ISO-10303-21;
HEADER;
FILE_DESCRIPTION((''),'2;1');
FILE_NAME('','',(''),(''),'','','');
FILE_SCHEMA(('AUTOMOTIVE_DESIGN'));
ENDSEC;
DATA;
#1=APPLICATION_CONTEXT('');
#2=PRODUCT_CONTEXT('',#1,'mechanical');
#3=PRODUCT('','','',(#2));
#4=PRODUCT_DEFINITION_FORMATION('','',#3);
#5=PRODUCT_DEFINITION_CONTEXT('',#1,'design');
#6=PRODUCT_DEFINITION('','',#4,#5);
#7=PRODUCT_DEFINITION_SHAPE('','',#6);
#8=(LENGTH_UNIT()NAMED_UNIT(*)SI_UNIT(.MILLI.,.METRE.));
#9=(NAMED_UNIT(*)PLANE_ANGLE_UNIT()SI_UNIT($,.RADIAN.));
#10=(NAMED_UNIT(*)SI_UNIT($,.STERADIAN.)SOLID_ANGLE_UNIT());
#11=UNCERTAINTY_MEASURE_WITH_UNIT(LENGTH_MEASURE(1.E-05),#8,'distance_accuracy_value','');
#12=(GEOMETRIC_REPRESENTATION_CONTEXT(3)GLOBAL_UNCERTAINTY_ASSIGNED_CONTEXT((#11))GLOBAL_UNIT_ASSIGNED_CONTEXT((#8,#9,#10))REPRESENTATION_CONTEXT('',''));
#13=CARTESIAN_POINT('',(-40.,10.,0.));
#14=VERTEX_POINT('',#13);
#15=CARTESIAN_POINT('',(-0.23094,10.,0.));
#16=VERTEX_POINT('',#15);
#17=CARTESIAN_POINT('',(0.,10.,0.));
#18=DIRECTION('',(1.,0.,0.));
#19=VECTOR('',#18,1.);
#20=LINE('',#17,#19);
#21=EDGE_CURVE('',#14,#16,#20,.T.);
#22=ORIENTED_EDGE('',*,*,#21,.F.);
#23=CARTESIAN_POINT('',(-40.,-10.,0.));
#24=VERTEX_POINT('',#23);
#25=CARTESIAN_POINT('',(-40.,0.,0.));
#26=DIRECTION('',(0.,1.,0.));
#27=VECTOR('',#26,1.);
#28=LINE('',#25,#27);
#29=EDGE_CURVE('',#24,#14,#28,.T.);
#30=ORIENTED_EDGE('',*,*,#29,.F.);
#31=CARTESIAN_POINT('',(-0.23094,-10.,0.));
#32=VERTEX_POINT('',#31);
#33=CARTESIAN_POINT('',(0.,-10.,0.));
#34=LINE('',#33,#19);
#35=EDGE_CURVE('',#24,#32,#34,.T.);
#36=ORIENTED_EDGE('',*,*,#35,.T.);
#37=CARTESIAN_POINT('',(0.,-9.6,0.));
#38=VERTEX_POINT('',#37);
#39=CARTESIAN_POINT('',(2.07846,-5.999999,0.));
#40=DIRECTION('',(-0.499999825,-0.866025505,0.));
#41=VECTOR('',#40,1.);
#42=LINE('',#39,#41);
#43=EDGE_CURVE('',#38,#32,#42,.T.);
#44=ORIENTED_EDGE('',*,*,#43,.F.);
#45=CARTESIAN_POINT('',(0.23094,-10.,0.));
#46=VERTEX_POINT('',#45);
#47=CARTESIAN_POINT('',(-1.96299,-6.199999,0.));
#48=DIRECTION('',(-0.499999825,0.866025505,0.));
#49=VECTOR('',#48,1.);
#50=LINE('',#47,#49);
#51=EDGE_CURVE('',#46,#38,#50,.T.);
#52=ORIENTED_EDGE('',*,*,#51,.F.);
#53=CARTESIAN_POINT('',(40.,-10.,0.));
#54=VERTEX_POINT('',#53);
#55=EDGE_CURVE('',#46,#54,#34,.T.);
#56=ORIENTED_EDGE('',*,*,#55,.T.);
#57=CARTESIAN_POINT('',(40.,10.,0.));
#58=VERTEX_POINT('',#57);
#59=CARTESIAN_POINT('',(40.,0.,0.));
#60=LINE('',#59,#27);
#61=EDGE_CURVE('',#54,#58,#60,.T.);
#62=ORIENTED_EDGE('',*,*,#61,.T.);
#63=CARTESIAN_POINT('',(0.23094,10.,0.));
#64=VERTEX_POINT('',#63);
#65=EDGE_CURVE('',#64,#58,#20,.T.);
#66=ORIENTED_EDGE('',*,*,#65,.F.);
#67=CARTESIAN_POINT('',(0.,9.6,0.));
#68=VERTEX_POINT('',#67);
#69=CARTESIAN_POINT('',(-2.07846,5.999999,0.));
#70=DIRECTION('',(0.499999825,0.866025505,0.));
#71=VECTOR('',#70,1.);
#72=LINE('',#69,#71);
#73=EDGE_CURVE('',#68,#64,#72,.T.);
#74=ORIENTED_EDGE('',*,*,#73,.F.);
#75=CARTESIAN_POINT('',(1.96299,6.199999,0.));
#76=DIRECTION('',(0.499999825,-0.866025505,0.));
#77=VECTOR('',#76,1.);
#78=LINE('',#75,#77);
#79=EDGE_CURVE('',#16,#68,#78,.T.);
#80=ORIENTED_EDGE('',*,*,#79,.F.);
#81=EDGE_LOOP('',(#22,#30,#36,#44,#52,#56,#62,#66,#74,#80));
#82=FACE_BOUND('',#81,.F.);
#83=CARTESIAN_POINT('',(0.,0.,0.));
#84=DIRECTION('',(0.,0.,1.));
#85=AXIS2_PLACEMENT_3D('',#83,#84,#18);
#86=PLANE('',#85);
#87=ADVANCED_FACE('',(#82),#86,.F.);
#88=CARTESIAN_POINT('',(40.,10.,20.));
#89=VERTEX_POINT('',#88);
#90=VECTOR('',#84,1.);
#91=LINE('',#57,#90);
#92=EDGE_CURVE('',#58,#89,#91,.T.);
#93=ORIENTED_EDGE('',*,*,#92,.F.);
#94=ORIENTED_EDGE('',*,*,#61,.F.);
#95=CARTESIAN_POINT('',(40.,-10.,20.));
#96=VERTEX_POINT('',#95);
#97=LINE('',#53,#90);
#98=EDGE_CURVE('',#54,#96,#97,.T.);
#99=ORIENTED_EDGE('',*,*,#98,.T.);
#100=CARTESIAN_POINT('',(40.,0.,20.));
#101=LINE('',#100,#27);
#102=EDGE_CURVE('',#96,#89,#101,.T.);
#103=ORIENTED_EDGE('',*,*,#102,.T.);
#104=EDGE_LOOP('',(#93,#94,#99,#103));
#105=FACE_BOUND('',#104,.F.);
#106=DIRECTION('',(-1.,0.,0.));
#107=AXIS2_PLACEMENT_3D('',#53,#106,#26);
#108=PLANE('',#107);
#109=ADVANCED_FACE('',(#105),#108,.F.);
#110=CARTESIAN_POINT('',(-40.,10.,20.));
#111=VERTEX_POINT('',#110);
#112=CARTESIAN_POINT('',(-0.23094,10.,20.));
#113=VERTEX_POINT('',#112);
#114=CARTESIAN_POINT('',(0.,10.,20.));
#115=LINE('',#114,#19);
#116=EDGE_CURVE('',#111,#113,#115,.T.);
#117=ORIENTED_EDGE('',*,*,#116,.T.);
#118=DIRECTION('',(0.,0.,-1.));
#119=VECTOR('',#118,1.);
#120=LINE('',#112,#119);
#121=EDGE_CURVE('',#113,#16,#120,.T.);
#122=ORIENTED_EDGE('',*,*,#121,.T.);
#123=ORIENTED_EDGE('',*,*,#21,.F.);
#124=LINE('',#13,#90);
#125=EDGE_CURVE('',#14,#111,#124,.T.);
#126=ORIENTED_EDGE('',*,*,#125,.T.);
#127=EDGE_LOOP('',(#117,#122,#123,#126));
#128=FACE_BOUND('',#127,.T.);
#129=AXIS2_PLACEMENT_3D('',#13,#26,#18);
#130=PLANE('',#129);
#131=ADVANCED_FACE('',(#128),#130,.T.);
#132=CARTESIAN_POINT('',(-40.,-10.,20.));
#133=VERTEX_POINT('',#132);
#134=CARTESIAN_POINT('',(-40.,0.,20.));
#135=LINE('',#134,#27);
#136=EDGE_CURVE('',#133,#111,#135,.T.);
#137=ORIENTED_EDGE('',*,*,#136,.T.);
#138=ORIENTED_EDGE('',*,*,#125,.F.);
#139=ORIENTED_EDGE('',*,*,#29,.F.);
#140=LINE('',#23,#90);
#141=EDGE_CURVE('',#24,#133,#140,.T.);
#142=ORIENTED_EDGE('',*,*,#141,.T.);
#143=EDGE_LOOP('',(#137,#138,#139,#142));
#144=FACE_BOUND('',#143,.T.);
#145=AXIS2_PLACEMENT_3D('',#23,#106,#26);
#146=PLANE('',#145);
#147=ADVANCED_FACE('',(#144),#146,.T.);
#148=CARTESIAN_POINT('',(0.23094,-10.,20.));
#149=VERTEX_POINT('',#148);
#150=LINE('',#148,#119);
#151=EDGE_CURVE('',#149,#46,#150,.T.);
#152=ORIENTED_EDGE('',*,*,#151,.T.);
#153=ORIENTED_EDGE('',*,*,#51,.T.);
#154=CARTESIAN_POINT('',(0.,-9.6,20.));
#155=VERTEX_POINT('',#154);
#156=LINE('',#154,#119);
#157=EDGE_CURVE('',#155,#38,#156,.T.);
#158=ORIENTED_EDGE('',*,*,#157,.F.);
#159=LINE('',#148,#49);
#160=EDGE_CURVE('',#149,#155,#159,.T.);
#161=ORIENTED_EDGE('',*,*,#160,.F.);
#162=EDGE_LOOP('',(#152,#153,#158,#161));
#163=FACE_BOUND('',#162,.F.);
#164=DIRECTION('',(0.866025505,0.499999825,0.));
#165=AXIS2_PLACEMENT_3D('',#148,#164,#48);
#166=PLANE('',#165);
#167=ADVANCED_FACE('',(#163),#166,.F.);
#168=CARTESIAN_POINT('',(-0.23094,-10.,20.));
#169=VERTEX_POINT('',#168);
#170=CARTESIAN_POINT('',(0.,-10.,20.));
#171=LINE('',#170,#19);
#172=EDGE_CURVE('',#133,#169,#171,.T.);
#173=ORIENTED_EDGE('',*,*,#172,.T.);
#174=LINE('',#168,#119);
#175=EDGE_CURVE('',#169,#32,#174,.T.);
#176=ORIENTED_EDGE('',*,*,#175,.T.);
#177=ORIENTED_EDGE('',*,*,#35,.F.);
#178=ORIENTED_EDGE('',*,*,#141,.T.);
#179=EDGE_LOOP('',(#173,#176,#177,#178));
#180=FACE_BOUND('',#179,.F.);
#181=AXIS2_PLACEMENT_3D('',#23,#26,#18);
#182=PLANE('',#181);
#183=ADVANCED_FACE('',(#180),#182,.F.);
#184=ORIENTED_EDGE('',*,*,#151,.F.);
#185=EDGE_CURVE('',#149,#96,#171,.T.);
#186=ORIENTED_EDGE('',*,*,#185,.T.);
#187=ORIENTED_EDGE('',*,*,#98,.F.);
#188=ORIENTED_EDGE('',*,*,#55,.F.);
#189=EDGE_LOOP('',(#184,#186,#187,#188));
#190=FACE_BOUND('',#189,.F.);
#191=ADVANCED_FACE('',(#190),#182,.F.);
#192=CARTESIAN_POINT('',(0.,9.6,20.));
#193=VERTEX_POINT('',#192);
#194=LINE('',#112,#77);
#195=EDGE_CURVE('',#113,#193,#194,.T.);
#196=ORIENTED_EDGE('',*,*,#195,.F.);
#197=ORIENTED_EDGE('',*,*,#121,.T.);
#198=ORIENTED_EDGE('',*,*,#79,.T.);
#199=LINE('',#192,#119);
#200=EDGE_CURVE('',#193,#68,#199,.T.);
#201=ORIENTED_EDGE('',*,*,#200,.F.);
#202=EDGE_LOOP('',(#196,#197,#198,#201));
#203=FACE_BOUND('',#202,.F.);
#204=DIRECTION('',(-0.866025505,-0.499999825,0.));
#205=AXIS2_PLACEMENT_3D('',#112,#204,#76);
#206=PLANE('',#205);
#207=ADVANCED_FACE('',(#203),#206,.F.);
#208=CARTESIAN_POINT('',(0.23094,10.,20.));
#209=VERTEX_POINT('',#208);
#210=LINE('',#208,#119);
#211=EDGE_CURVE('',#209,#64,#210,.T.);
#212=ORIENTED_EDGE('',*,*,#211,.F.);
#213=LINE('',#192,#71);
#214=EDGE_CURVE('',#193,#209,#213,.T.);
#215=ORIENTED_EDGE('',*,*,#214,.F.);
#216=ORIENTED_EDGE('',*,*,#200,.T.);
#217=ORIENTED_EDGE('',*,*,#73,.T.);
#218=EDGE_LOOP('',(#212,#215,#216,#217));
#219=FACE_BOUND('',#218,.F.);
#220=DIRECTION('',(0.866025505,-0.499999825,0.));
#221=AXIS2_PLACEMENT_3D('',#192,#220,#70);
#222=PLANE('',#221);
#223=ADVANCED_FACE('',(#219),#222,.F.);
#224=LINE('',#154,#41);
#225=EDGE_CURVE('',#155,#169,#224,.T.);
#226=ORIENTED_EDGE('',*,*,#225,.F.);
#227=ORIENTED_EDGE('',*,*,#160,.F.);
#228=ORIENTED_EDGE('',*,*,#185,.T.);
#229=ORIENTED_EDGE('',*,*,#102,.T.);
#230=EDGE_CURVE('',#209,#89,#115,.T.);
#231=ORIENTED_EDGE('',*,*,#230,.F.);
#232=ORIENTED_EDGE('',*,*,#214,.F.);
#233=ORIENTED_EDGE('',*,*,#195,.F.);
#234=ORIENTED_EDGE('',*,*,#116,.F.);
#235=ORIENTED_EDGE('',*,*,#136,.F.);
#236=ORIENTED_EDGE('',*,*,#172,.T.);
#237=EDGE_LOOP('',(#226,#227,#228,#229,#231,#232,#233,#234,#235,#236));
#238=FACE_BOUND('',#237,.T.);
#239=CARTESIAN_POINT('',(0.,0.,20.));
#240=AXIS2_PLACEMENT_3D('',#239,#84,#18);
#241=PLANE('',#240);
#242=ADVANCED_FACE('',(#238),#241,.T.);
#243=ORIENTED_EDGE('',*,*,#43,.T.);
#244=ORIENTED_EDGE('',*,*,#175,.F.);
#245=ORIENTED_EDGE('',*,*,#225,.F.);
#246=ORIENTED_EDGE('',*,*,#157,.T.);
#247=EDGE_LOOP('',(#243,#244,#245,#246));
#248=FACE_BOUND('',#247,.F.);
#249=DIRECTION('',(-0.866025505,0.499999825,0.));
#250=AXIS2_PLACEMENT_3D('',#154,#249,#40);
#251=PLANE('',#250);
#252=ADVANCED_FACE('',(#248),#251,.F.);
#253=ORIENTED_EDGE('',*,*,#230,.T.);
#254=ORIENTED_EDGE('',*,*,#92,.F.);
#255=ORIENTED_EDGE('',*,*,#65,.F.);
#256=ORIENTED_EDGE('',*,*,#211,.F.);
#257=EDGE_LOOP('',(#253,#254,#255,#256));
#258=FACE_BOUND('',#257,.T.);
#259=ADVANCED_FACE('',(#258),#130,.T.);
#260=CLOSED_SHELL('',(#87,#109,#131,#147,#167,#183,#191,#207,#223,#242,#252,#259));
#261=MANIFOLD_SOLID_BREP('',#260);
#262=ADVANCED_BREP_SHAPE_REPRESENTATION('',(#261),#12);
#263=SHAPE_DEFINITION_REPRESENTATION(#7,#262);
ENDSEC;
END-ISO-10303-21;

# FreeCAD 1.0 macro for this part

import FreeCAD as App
import Part
import Sketcher
from FreeCAD import Vector
Q = App.Units.Quantity

doc = App.newDocument("Part")
body = doc.addObject("PartDesign::Body", "Body")

# Sketch on XY plane
sketch1 = body.newObject("Sketcher::SketchObject", "Sketch")
sketch1.AttachmentSupport = (doc.getObject("XY_Plane"), [""])
sketch1.MapMode = "FlatFace"
sketch1.addGeometry(Part.LineSegment(Vector(-40, 10, 0), Vector(-40, -10, 0)), False)
sketch1.addGeometry(Part.LineSegment(Vector(-40, -10, 0), Vector(40, -10, 0)), False)
sketch1.addGeometry(Part.LineSegment(Vector(40, -10, 0), Vector(40, 10, 0)), False)
sketch1.addGeometry(Part.LineSegment(Vector(40, 10, 0), Vector(-40, 10, 0)), False)
sketch1.addConstraint(Sketcher.Constraint("Coincident", 0, 2, 1, 1))
sketch1.addConstraint(Sketcher.Constraint("Coincident", 1, 2, 2, 1))
sketch1.addConstraint(Sketcher.Constraint("Coincident", 2, 2, 3, 1))
sketch1.addConstraint(Sketcher.Constraint("Coincident", 3, 2, 0, 1))
sketch1.addConstraint(Sketcher.Constraint("Vertical", 0))
sketch1.addConstraint(Sketcher.Constraint("Horizontal", 1))
sketch1.addConstraint(Sketcher.Constraint("Vertical", 2))
sketch1.addConstraint(Sketcher.Constraint("Horizontal", 3))
sketch1.addConstraint(Sketcher.Constraint("Symmetric", 0, 2, 2, 2, -1, 1))
sketch1.addConstraint(Sketcher.Constraint("DistanceX", 1, 1, 1, 2, 80.0))
sketch1.addConstraint(Sketcher.Constraint("DistanceY", 0, 2, 0, 1, 20.0))
pad1 = body.newObject("PartDesign::Pad", "Pad")
pad1.Profile = sketch1
pad1.Length = 20

# Sketch on XY plane
sketch2 = body.newObject("Sketcher::SketchObject", "Sketch001")
sketch2.AttachmentSupport = (doc.getObject("XY_Plane"), [""])
sketch2.MapMode = "FlatFace"
sketch2.AttachmentOffset = App.Placement(Vector(0, 0, 20), App.Rotation())
sketch2.addGeometry(Part.LineSegment(Vector(0, -9.6, 0), Vector(-0.23, -10, 0)), False)
sketch2.addGeometry(Part.LineSegment(Vector(-0.23, -10, 0), Vector(0.23, -10, 0)), False)
sketch2.addGeometry(Part.LineSegment(Vector(0.23, -10, 0), Vector(0, -9.6, 0)), False)
sketch2.addGeometry(Part.LineSegment(Vector(0.23, 10, 0), Vector(-0.23, 10, 0)), False)
sketch2.addGeometry(Part.LineSegment(Vector(-0.23, 10, 0), Vector(0, 9.6, 0)), False)
sketch2.addGeometry(Part.LineSegment(Vector(0, 9.6, 0), Vector(0.23, 10, 0)), False)
sketch2.addConstraint(Sketcher.Constraint("Coincident", 0, 2, 1, 1))
sketch2.addConstraint(Sketcher.Constraint("Coincident", 1, 2, 2, 1))
sketch2.addConstraint(Sketcher.Constraint("Coincident", 2, 2, 0, 1))
sketch2.addConstraint(Sketcher.Constraint("Coincident", 3, 2, 4, 1))
sketch2.addConstraint(Sketcher.Constraint("Coincident", 4, 2, 5, 1))
sketch2.addConstraint(Sketcher.Constraint("Coincident", 5, 2, 3, 1))
sketch2.addConstraint(Sketcher.Constraint("Horizontal", 1))
sketch2.addConstraint(Sketcher.Constraint("Horizontal", 3))
sketch2.addConstraint(Sketcher.Constraint("Symmetric", 1, 2, 3, 2, -1, 1))
sketch2.addConstraint(Sketcher.Constraint("Symmetric", 2, 2, 4, 2, -1, 1))
sketch2.addConstraint(Sketcher.Constraint("PointOnObject", 2, 2, -2))
sketch2.addConstraint(Sketcher.Constraint("Parallel", 0, 5))
sketch2.addConstraint(Sketcher.Constraint("Vertical", 0, 2, 3, 2))
sketch2.addConstraint(Sketcher.Constraint("Angle", 0, Q("-119.999988 deg")))
sketch2.addConstraint(Sketcher.Constraint("DistanceY", 0, 2, -1, 1, 10.0))
sketch2.addConstraint(Sketcher.Constraint("DistanceY", 2, 2, -1, 1, 9.6))
pocket1 = body.newObject("PartDesign::Pocket", "Pocket")
pocket1.Profile = sketch2
pocket1.Type = "ThroughAll"

doc.recompute()
